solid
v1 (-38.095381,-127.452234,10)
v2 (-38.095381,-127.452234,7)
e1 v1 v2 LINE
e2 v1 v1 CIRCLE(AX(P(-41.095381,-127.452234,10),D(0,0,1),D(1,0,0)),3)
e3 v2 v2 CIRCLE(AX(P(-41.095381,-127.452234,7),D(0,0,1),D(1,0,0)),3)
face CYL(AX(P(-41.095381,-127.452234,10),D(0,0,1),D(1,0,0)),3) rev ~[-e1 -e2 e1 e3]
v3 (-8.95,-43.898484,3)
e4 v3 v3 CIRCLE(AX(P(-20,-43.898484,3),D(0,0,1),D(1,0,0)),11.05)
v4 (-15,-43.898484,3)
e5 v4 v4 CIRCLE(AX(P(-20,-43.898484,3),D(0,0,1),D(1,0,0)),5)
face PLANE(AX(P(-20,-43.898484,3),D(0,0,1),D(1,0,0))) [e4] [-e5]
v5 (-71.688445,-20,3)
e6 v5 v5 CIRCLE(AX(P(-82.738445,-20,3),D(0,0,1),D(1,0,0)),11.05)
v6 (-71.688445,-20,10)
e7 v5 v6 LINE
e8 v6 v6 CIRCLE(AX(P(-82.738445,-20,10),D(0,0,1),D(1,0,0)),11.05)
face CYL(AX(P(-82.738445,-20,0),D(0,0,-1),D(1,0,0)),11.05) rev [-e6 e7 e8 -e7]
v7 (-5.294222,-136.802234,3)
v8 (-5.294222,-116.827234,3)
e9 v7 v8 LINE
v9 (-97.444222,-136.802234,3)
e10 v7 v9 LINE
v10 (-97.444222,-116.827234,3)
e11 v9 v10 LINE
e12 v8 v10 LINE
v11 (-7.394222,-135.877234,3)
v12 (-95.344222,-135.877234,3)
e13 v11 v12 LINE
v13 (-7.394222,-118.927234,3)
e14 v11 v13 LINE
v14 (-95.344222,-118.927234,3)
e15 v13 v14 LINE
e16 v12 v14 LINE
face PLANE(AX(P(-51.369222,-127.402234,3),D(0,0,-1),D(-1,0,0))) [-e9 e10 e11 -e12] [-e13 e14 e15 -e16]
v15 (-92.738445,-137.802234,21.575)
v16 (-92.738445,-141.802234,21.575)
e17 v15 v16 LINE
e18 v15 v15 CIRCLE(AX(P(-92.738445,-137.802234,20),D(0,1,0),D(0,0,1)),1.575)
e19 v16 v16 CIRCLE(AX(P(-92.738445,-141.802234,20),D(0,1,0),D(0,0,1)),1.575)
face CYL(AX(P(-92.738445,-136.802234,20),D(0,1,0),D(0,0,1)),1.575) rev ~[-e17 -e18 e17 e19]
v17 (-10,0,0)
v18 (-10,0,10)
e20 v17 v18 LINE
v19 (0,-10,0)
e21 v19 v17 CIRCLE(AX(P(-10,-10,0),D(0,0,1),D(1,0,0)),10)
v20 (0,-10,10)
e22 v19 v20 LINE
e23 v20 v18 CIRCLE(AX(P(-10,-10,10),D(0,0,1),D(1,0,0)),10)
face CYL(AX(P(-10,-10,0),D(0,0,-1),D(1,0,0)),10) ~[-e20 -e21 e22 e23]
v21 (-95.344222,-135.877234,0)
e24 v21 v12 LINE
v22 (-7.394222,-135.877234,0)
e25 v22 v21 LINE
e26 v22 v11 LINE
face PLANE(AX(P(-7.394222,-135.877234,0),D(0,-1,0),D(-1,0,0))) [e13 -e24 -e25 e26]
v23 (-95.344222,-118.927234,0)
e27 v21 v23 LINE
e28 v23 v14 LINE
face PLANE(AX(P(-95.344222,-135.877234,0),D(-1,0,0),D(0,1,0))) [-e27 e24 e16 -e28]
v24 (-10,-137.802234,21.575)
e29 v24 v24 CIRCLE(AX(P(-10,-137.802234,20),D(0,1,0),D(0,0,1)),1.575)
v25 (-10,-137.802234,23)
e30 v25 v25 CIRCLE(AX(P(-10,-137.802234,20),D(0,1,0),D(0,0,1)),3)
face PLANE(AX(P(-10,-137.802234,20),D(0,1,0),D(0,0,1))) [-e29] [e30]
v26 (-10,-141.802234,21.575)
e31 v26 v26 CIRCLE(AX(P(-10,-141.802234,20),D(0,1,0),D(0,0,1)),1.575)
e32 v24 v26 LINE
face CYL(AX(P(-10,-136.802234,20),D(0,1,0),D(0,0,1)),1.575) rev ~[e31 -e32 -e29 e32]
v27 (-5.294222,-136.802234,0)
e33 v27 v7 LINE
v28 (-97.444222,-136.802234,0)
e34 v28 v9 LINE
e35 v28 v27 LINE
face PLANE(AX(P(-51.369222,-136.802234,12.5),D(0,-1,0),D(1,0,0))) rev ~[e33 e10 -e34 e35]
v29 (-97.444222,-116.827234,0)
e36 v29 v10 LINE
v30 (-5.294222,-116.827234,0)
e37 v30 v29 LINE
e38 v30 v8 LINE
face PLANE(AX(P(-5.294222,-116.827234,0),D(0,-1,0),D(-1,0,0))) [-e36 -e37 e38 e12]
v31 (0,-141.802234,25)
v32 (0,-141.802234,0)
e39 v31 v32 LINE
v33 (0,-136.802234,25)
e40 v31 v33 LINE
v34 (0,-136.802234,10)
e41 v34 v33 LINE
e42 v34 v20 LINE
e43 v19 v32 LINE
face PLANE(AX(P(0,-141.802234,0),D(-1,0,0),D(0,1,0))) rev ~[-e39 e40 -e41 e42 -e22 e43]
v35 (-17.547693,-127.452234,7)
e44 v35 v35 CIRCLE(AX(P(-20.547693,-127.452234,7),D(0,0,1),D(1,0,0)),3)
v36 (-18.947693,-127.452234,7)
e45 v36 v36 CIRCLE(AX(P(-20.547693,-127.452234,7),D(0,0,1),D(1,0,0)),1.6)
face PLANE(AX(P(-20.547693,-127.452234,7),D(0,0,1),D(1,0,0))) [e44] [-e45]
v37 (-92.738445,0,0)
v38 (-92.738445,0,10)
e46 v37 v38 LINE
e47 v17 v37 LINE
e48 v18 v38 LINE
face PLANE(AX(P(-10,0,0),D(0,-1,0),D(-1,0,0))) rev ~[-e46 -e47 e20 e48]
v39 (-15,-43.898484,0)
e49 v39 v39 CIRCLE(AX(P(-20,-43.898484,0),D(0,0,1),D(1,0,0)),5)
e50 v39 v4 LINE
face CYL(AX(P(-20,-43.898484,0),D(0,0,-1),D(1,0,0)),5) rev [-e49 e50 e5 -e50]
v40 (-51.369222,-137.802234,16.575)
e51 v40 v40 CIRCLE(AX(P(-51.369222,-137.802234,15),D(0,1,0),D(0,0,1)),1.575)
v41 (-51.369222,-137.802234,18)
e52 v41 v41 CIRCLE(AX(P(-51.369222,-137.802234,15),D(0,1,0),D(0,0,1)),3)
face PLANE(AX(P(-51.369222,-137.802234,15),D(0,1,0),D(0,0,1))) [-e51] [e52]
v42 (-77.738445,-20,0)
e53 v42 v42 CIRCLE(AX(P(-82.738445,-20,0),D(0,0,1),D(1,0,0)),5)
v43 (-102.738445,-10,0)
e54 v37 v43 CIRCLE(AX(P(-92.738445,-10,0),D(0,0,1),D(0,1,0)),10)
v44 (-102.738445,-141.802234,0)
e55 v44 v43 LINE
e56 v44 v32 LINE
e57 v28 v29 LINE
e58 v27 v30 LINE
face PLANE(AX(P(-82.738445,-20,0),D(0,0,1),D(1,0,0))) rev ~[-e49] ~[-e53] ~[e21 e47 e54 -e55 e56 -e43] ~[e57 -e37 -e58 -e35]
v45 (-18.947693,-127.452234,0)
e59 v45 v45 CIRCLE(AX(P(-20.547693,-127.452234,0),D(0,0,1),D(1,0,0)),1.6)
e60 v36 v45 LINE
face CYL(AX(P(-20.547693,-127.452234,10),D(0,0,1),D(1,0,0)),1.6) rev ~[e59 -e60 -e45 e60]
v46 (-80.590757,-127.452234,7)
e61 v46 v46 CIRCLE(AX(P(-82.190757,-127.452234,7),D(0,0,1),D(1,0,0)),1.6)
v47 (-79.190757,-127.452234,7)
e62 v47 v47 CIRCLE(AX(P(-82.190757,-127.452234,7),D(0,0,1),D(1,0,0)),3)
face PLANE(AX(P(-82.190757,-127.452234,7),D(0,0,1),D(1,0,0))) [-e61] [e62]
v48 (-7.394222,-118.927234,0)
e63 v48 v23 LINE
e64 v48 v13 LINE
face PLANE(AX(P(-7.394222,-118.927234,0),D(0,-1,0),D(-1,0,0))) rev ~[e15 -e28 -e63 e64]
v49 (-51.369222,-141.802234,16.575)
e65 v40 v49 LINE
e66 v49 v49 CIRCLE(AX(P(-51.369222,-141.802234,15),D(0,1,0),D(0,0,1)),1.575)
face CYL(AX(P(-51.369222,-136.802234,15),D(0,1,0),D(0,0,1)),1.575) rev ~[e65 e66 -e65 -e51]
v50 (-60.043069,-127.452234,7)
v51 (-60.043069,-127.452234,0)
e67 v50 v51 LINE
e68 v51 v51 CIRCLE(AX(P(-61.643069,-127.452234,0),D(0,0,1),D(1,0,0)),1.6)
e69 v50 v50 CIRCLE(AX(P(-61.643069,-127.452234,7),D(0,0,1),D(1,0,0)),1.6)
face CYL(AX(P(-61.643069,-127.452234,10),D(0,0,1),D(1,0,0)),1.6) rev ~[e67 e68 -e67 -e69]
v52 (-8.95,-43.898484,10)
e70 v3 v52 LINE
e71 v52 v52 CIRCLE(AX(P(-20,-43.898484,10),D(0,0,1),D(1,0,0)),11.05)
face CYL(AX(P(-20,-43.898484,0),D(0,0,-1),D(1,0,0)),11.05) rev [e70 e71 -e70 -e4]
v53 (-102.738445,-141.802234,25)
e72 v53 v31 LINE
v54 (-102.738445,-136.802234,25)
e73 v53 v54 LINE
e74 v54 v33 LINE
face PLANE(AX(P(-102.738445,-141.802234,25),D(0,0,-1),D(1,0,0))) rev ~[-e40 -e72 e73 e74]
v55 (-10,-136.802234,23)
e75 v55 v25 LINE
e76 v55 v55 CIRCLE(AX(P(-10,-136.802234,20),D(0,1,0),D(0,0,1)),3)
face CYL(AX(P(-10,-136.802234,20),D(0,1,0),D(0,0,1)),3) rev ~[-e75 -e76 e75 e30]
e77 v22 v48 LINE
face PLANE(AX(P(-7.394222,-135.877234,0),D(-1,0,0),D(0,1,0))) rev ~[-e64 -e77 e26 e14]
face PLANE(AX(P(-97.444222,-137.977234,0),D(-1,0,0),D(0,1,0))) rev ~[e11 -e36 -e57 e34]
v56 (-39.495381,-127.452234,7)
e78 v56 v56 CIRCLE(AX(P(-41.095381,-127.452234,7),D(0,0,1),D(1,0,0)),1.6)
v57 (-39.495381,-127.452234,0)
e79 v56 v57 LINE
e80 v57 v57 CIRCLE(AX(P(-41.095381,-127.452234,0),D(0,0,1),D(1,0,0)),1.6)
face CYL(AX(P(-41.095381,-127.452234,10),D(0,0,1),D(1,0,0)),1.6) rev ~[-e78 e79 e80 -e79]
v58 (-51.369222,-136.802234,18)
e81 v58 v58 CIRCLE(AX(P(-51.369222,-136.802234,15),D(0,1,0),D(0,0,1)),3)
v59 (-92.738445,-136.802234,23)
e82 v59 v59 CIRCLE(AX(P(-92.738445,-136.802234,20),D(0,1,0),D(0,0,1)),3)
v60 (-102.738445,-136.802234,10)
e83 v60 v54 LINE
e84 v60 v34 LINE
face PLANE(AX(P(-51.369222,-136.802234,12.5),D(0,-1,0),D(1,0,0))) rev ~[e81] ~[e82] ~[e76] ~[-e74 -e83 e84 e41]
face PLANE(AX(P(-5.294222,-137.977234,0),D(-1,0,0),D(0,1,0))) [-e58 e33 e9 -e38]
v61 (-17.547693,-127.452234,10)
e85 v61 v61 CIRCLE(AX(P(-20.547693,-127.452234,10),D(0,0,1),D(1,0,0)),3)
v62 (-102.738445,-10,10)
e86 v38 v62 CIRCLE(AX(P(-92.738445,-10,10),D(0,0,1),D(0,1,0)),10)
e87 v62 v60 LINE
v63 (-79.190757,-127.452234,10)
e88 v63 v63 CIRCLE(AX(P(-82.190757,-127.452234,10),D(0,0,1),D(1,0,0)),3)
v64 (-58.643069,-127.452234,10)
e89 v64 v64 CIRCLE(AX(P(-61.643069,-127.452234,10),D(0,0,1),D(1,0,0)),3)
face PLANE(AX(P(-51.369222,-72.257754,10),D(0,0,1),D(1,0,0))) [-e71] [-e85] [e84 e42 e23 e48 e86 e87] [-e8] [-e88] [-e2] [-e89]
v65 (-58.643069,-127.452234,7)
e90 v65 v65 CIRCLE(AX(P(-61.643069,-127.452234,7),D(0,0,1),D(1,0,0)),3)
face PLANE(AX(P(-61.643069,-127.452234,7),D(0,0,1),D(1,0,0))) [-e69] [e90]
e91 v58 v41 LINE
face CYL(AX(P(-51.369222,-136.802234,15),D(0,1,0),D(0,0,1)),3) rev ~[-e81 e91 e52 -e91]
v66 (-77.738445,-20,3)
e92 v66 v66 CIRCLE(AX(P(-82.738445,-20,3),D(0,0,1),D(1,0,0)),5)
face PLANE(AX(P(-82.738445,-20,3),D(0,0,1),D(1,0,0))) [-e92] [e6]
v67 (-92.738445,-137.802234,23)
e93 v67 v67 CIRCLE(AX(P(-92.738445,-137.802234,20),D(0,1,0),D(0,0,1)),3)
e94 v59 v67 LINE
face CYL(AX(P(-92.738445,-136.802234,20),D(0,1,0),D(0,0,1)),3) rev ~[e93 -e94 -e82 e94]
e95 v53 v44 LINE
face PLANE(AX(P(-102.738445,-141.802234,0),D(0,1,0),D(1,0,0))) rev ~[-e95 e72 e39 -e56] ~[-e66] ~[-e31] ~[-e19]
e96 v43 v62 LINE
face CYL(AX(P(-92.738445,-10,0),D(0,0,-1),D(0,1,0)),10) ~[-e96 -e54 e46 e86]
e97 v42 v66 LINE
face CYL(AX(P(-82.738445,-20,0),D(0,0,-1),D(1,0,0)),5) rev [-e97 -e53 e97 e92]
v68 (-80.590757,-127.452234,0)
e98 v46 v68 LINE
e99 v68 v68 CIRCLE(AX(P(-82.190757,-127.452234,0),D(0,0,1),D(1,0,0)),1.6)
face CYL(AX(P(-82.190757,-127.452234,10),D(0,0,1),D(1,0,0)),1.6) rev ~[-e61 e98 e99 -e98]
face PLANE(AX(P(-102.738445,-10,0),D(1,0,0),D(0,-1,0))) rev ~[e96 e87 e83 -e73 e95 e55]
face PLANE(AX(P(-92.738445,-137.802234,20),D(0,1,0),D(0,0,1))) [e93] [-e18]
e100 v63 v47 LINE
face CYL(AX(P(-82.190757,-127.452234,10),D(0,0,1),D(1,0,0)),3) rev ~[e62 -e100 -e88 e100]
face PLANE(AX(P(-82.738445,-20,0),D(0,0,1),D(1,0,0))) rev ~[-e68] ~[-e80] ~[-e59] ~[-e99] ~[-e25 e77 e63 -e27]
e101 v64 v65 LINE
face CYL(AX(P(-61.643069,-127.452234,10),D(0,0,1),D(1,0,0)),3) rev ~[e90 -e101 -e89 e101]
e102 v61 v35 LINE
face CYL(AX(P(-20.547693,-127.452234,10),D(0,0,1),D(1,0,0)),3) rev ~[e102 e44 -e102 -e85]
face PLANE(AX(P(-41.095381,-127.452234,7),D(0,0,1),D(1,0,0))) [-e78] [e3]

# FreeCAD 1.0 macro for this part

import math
import FreeCAD as App
import Part
import Sketcher
from FreeCAD import Vector


def add_polygon(sketch, points):
    """Adds a closed chain of lines whose ends are joined by coincident constraints."""
    first, n = sketch.GeometryCount, len(points)
    for a, b in zip(points, points[1:] + points[:1]):
        sketch.addGeometry(Part.LineSegment(App.Vector(*a, 0), App.Vector(*b, 0)), False)
    for i in range(n):
        sketch.addConstraint(Sketcher.Constraint("Coincident", first + i, 2, first + (i + 1) % n, 1))

doc = App.newDocument("Part")
body = doc.addObject("PartDesign::Body", "Body")

sketch1 = doc.addObject("Sketcher::SketchObject", "Sketch")
body.addObject(sketch1)
sketch1.AttachmentSupport = (doc.XY_Plane, [""])
sketch1.MapMode = "FlatFace"
sketch1.addGeometry([
    Part.LineSegment(Vector(-10, 0, 0), Vector(-93, 0, 0)),
    Part.ArcOfCircle(Part.Circle(Vector(-93, -10, 0), Vector(0, 0, 1), 10), math.radians(90), math.radians(180)),
    Part.LineSegment(Vector(-103, -10, 0), Vector(-103, -142, 0)),
    Part.LineSegment(Vector(-103, -142, 0), Vector(0, -142, 0)),
    Part.LineSegment(Vector(0, -142, 0), Vector(0, -10, 0)),
    Part.ArcOfCircle(Part.Circle(Vector(-10, -10, 0), Vector(0, 0, 1), 10), math.radians(0), math.radians(90)),
    Part.Circle(Vector(-20, -44, 0), Vector(0, 0, 1), 11),
    Part.Circle(Vector(-83, -20, 0), Vector(0, 0, 1), 11),
], False)
sketch1.addConstraint([
    Sketcher.Constraint("Tangent", 0, 2, 1, 1),
    Sketcher.Constraint("Tangent", 1, 2, 2, 1),
    Sketcher.Constraint("Coincident", 2, 2, 3, 1),
    Sketcher.Constraint("Coincident", 3, 2, 4, 1),
    Sketcher.Constraint("Tangent", 4, 2, 5, 1),
    Sketcher.Constraint("Tangent", 5, 2, 0, 1),
    Sketcher.Constraint("Horizontal", 0),
    Sketcher.Constraint("Vertical", 2),
    Sketcher.Constraint("Horizontal", 3),
    Sketcher.Constraint("Vertical", 4),
    Sketcher.Constraint("Equal", 1, 5),
    Sketcher.Constraint("Equal", 6, 7),
    Sketcher.Constraint("PointOnObject", 0, 2, -1),
    Sketcher.Constraint("PointOnObject", 3, 2, -2),
    Sketcher.Constraint("Radius", 1, 10.0),
    Sketcher.Constraint("Diameter", 6, 22.1),
    Sketcher.Constraint("DistanceX", 6, 3, -1, 1, 20.0),
    Sketcher.Constraint("DistanceY", 7, 3, -1, 1, 20.0),
    Sketcher.Constraint("DistanceX", 1, 3, 7, 3, 10.0),
    Sketcher.Constraint("DistanceX", 0, 2, 0, 1, 82.738445),
    Sketcher.Constraint("DistanceY", 2, 2, 2, 1, 131.802234),
    Sketcher.Constraint("DistanceY", 2, 2, 6, 3, 97.90375),
])
pad1 = doc.addObject("PartDesign::Pad", "Pad")
body.addObject(pad1)
pad1.Profile = sketch1
pad1.Length = 10

sketch2 = doc.addObject("Sketcher::SketchObject", "Sketch001")
body.addObject(sketch2)
sketch2.AttachmentSupport = (doc.XY_Plane, [""])
sketch2.MapMode = "FlatFace"
sketch2.addGeometry([
    Part.Circle(Vector(-83, -20, 0), Vector(0, 0, 1), 11),
    Part.Circle(Vector(-83, -20, 0), Vector(0, 0, 1), 5),
    Part.Circle(Vector(-20, -44, 0), Vector(0, 0, 1), 11),
    Part.Circle(Vector(-20, -44, 0), Vector(0, 0, 1), 5),
], False)
sketch2.addConstraint([
    Sketcher.Constraint("Coincident", 1, 3, 0, 3),
    Sketcher.Constraint("Coincident", 3, 3, 2, 3),
    Sketcher.Constraint("Equal", 0, 2),
    Sketcher.Constraint("Equal", 1, 3),
    Sketcher.Constraint("Diameter", 1, 10.0),
    Sketcher.Constraint("Diameter", 0, 22.1),
    Sketcher.Constraint("DistanceY", 0, 3, -1, 1, 20.0),
    Sketcher.Constraint("DistanceX", 2, 3, -1, 1, 20.0),
    Sketcher.Constraint("DistanceX", 0, 3, -1, 1, 82.738445),
    Sketcher.Constraint("DistanceY", 2, 3, -1, 1, 43.898484),
])
pad2 = doc.addObject("PartDesign::Pad", "Pad001")
body.addObject(pad2)
pad2.Profile = sketch2
pad2.Length = 3

sketch3 = doc.addObject("Sketcher::SketchObject", "Sketch002")
body.addObject(sketch3)
sketch3.AttachmentSupport = (doc.XY_Plane, [""])
sketch3.MapMode = "FlatFace"
sketch3.AttachmentOffset = App.Placement(Vector(0, 0, 10), App.Rotation())
sketch3.addGeometry([
    Part.Circle(Vector(-82.2, -127.5, 0), Vector(0, 0, 1), 1.6),
    Part.Circle(Vector(-61.6, -127.5, 0), Vector(0, 0, 1), 1.6),
    Part.Circle(Vector(-41.1, -127.5, 0), Vector(0, 0, 1), 1.6),
    Part.Circle(Vector(-20.5, -127.5, 0), Vector(0, 0, 1), 1.6),
], False)
sketch3.addConstraint([
    Sketcher.Constraint("Equal", 0, 1),
    Sketcher.Constraint("Equal", 1, 2),
    Sketcher.Constraint("Equal", 2, 3),
    Sketcher.Constraint("Horizontal", 0, 3, 1, 3),
    Sketcher.Constraint("Horizontal", 1, 3, 2, 3),
    Sketcher.Constraint("Horizontal", 2, 3, 3, 3),
    Sketcher.Constraint("Diameter", 0, 3.2),
    Sketcher.Constraint("DistanceX", 1, 3, -1, 1, 61.643069),
    Sketcher.Constraint("DistanceX", 2, 3, -1, 1, 41.095381),
    Sketcher.Constraint("DistanceX", 2, 3, 3, 3, 20.547688),
    Sketcher.Constraint("DistanceX", 0, 3, -1, 1, 82.190757),
    Sketcher.Constraint("DistanceY", 0, 3, -1, 1, 127.452234),
])
pocket1 = doc.addObject("PartDesign::Pocket", "Pocket")
body.addObject(pocket1)
pocket1.Profile = sketch3
pocket1.Length = 10

sketch4 = doc.addObject("Sketcher::SketchObject", "Sketch003")
body.addObject(sketch4)
sketch4.AttachmentSupport = (doc.XY_Plane, [""])
sketch4.MapMode = "FlatFace"
sketch4.AttachmentOffset = App.Placement(Vector(0, 0, 10), App.Rotation())
sketch4.addGeometry([
    Part.Circle(Vector(-82.2, -127.5, 0), Vector(0, 0, 1), 3),
    Part.Circle(Vector(-82.2, -127.5, 0), Vector(0, 0, 1), 1.6),
    Part.Circle(Vector(-61.6, -127.5, 0), Vector(0, 0, 1), 3),
    Part.Circle(Vector(-61.6, -127.5, 0), Vector(0, 0, 1), 1.6),
    Part.Circle(Vector(-41.1, -127.5, 0), Vector(0, 0, 1), 3),
    Part.Circle(Vector(-41.1, -127.5, 0), Vector(0, 0, 1), 1.6),
    Part.Circle(Vector(-20.5, -127.5, 0), Vector(0, 0, 1), 3),
    Part.Circle(Vector(-20.5, -127.5, 0), Vector(0, 0, 1), 1.6),
], False)
sketch4.addConstraint([
    Sketcher.Constraint("Coincident", 1, 3, 0, 3),
    Sketcher.Constraint("Coincident", 3, 3, 2, 3),
    Sketcher.Constraint("Coincident", 5, 3, 4, 3),
    Sketcher.Constraint("Coincident", 7, 3, 6, 3),
    Sketcher.Constraint("Equal", 0, 2),
    Sketcher.Constraint("Equal", 1, 3),
    Sketcher.Constraint("Equal", 2, 4),
    Sketcher.Constraint("Equal", 3, 5),
    Sketcher.Constraint("Equal", 4, 6),
    Sketcher.Constraint("Equal", 5, 7),
    Sketcher.Constraint("Horizontal", 1, 3, 2, 3),
    Sketcher.Constraint("Horizontal", 3, 3, 4, 3),
    Sketcher.Constraint("Horizontal", 5, 3, 6, 3),
    Sketcher.Constraint("Diameter", 0, 6.0),
    Sketcher.Constraint("Diameter", 1, 3.2),
    Sketcher.Constraint("DistanceX", 2, 3, -1, 1, 61.643069),
    Sketcher.Constraint("DistanceX", 4, 3, -1, 1, 41.095381),
    Sketcher.Constraint("DistanceX", 4, 3, 6, 3, 20.547688),
    Sketcher.Constraint("DistanceX", 0, 3, -1, 1, 82.190757),
    Sketcher.Constraint("DistanceY", 0, 3, -1, 1, 127.452234),
])
pocket2 = doc.addObject("PartDesign::Pocket", "Pocket001")
body.addObject(pocket2)
pocket2.Profile = sketch4
pocket2.Length = 3

sketch5 = doc.addObject("Sketcher::SketchObject", "Sketch004")
body.addObject(sketch5)
sketch5.AttachmentSupport = (doc.XY_Plane, [""])
sketch5.MapMode = "FlatFace"
add_polygon(sketch5, [(-5, -117), (-5, -138), (-97, -138), (-97, -117)])
add_polygon(sketch5, [(-95, -136), (-7, -136), (-7, -119), (-95, -119)])
sketch5.addConstraint([
    Sketcher.Constraint("Vertical", 0),
    Sketcher.Constraint("Horizontal", 1),
    Sketcher.Constraint("Vertical", 2),
    Sketcher.Constraint("Horizontal", 3),
    Sketcher.Constraint("Horizontal", 4),
    Sketcher.Constraint("Vertical", 5),
    Sketcher.Constraint("Horizontal", 6),
    Sketcher.Constraint("Vertical", 7),
    Sketcher.Constraint("DistanceX", 1, 2, 1, 1, 92.15),
    Sketcher.Constraint("DistanceX", 4, 1, 4, 2, 87.95),
    Sketcher.Constraint("DistanceY", 0, 2, 0, 1, 21.15),
    Sketcher.Constraint("DistanceY", 5, 1, 5, 2, 16.95),
    Sketcher.Constraint("DistanceX", 4, 2, 0, 2, 2.1),
    Sketcher.Constraint("DistanceY", 0, 2, 4, 2, 2.1),
    Sketcher.Constraint("DistanceX", 0, 2, -1, 1, 5.294222),
    Sketcher.Constraint("DistanceY", 0, 2, -1, 1, 137.977234),
])
pocket3 = doc.addObject("PartDesign::Pocket", "Pocket002")
body.addObject(pocket3)
pocket3.Profile = sketch5
pocket3.Length = 3
pocket3.Reversed = True

sketch6 = doc.addObject("Sketcher::SketchObject", "Sketch005")
body.addObject(sketch6)
sketch6.AttachmentSupport = (doc.XZ_Plane, [""])
sketch6.MapMode = "FlatFace"
sketch6.AttachmentOffset = App.Placement(Vector(0, 0, 141.802234), App.Rotation())
add_polygon(sketch6, [(-103, 25), (-103, 0), (0, 0), (0, 25)])
sketch6.addConstraint([
    Sketcher.Constraint("Vertical", 0),
    Sketcher.Constraint("Horizontal", 1),
    Sketcher.Constraint("Vertical", 2),
    Sketcher.Constraint("Horizontal", 3),
    Sketcher.Constraint("Coincident", 1, 2, -1, 1),
    Sketcher.Constraint("DistanceY", 0, 2, 0, 1, 25.0),
    Sketcher.Constraint("DistanceX", 1, 1, 1, 2, 102.738445),
])
pad3 = doc.addObject("PartDesign::Pad", "Pad002")
body.addObject(pad3)
pad3.Profile = sketch6
pad3.Length = 5
pad3.Reversed = True

sketch7 = doc.addObject("Sketcher::SketchObject", "Sketch006")
body.addObject(sketch7)
sketch7.AttachmentSupport = (doc.XZ_Plane, [""])
sketch7.MapMode = "FlatFace"
sketch7.AttachmentOffset = App.Placement(Vector(0, 0, 136.802234), App.Rotation())
sketch7.addGeometry([
    Part.Circle(Vector(-92.7, 20, 0), Vector(0, 0, 1), 1.6),
    Part.Circle(Vector(-51.4, 15, 0), Vector(0, 0, 1), 1.6),
    Part.Circle(Vector(-10, 20, 0), Vector(0, 0, 1), 1.6),
], False)
sketch7.addConstraint([
    Sketcher.Constraint("Equal", 0, 1),
    Sketcher.Constraint("Equal", 1, 2),
    Sketcher.Constraint("Horizontal", 0, 3, 2, 3),
    Sketcher.Constraint("Diameter", 0, 3.15),
    Sketcher.Constraint("DistanceY", -1, 1, 0, 3, 20.0),
    Sketcher.Constraint("DistanceY", -1, 1, 1, 3, 15.0),
    Sketcher.Constraint("DistanceX", 2, 3, -1, 1, 10.0),
    Sketcher.Constraint("DistanceX", 0, 3, -1, 1, 92.738445),
    Sketcher.Constraint("DistanceX", 1, 3, -1, 1, 51.369222),
])
pocket4 = doc.addObject("PartDesign::Pocket", "Pocket003")
body.addObject(pocket4)
pocket4.Profile = sketch7
pocket4.Length = 5
pocket4.Reversed = True

sketch8 = doc.addObject("Sketcher::SketchObject", "Sketch007")
body.addObject(sketch8)
sketch8.AttachmentSupport = (doc.XZ_Plane, [""])
sketch8.MapMode = "FlatFace"
sketch8.AttachmentOffset = App.Placement(Vector(0, 0, 136.802234), App.Rotation())
sketch8.addGeometry([
    Part.Circle(Vector(-92.7, 20, 0), Vector(0, 0, 1), 3),
    Part.Circle(Vector(-92.7, 20, 0), Vector(0, 0, 1), 1.6),
    Part.Circle(Vector(-51.4, 15, 0), Vector(0, 0, 1), 3),
    Part.Circle(Vector(-51.4, 15, 0), Vector(0, 0, 1), 1.6),
    Part.Circle(Vector(-10, 20, 0), Vector(0, 0, 1), 3),
    Part.Circle(Vector(-10, 20, 0), Vector(0, 0, 1), 1.6),
], False)
sketch8.addConstraint([
    Sketcher.Constraint("Coincident", 1, 3, 0, 3),
    Sketcher.Constraint("Coincident", 3, 3, 2, 3),
    Sketcher.Constraint("Coincident", 5, 3, 4, 3),
    Sketcher.Constraint("Equal", 0, 2),
    Sketcher.Constraint("Equal", 1, 3),
    Sketcher.Constraint("Equal", 2, 4),
    Sketcher.Constraint("Equal", 3, 5),
    Sketcher.Constraint("Horizontal", 1, 3, 4, 3),
    Sketcher.Constraint("Diameter", 0, 6.0),
    Sketcher.Constraint("Diameter", 1, 3.15),
    Sketcher.Constraint("DistanceY", -1, 1, 0, 3, 20.0),
    Sketcher.Constraint("DistanceY", -1, 1, 2, 3, 15.0),
    Sketcher.Constraint("DistanceX", 4, 3, -1, 1, 10.0),
    Sketcher.Constraint("DistanceX", 0, 3, -1, 1, 92.738445),
    Sketcher.Constraint("DistanceX", 2, 3, -1, 1, 51.369222),
])
pocket5 = doc.addObject("PartDesign::Pocket", "Pocket004")
body.addObject(pocket5)
pocket5.Profile = sketch8
pocket5.Length = 1
pocket5.Reversed = True

doc.recompute()
